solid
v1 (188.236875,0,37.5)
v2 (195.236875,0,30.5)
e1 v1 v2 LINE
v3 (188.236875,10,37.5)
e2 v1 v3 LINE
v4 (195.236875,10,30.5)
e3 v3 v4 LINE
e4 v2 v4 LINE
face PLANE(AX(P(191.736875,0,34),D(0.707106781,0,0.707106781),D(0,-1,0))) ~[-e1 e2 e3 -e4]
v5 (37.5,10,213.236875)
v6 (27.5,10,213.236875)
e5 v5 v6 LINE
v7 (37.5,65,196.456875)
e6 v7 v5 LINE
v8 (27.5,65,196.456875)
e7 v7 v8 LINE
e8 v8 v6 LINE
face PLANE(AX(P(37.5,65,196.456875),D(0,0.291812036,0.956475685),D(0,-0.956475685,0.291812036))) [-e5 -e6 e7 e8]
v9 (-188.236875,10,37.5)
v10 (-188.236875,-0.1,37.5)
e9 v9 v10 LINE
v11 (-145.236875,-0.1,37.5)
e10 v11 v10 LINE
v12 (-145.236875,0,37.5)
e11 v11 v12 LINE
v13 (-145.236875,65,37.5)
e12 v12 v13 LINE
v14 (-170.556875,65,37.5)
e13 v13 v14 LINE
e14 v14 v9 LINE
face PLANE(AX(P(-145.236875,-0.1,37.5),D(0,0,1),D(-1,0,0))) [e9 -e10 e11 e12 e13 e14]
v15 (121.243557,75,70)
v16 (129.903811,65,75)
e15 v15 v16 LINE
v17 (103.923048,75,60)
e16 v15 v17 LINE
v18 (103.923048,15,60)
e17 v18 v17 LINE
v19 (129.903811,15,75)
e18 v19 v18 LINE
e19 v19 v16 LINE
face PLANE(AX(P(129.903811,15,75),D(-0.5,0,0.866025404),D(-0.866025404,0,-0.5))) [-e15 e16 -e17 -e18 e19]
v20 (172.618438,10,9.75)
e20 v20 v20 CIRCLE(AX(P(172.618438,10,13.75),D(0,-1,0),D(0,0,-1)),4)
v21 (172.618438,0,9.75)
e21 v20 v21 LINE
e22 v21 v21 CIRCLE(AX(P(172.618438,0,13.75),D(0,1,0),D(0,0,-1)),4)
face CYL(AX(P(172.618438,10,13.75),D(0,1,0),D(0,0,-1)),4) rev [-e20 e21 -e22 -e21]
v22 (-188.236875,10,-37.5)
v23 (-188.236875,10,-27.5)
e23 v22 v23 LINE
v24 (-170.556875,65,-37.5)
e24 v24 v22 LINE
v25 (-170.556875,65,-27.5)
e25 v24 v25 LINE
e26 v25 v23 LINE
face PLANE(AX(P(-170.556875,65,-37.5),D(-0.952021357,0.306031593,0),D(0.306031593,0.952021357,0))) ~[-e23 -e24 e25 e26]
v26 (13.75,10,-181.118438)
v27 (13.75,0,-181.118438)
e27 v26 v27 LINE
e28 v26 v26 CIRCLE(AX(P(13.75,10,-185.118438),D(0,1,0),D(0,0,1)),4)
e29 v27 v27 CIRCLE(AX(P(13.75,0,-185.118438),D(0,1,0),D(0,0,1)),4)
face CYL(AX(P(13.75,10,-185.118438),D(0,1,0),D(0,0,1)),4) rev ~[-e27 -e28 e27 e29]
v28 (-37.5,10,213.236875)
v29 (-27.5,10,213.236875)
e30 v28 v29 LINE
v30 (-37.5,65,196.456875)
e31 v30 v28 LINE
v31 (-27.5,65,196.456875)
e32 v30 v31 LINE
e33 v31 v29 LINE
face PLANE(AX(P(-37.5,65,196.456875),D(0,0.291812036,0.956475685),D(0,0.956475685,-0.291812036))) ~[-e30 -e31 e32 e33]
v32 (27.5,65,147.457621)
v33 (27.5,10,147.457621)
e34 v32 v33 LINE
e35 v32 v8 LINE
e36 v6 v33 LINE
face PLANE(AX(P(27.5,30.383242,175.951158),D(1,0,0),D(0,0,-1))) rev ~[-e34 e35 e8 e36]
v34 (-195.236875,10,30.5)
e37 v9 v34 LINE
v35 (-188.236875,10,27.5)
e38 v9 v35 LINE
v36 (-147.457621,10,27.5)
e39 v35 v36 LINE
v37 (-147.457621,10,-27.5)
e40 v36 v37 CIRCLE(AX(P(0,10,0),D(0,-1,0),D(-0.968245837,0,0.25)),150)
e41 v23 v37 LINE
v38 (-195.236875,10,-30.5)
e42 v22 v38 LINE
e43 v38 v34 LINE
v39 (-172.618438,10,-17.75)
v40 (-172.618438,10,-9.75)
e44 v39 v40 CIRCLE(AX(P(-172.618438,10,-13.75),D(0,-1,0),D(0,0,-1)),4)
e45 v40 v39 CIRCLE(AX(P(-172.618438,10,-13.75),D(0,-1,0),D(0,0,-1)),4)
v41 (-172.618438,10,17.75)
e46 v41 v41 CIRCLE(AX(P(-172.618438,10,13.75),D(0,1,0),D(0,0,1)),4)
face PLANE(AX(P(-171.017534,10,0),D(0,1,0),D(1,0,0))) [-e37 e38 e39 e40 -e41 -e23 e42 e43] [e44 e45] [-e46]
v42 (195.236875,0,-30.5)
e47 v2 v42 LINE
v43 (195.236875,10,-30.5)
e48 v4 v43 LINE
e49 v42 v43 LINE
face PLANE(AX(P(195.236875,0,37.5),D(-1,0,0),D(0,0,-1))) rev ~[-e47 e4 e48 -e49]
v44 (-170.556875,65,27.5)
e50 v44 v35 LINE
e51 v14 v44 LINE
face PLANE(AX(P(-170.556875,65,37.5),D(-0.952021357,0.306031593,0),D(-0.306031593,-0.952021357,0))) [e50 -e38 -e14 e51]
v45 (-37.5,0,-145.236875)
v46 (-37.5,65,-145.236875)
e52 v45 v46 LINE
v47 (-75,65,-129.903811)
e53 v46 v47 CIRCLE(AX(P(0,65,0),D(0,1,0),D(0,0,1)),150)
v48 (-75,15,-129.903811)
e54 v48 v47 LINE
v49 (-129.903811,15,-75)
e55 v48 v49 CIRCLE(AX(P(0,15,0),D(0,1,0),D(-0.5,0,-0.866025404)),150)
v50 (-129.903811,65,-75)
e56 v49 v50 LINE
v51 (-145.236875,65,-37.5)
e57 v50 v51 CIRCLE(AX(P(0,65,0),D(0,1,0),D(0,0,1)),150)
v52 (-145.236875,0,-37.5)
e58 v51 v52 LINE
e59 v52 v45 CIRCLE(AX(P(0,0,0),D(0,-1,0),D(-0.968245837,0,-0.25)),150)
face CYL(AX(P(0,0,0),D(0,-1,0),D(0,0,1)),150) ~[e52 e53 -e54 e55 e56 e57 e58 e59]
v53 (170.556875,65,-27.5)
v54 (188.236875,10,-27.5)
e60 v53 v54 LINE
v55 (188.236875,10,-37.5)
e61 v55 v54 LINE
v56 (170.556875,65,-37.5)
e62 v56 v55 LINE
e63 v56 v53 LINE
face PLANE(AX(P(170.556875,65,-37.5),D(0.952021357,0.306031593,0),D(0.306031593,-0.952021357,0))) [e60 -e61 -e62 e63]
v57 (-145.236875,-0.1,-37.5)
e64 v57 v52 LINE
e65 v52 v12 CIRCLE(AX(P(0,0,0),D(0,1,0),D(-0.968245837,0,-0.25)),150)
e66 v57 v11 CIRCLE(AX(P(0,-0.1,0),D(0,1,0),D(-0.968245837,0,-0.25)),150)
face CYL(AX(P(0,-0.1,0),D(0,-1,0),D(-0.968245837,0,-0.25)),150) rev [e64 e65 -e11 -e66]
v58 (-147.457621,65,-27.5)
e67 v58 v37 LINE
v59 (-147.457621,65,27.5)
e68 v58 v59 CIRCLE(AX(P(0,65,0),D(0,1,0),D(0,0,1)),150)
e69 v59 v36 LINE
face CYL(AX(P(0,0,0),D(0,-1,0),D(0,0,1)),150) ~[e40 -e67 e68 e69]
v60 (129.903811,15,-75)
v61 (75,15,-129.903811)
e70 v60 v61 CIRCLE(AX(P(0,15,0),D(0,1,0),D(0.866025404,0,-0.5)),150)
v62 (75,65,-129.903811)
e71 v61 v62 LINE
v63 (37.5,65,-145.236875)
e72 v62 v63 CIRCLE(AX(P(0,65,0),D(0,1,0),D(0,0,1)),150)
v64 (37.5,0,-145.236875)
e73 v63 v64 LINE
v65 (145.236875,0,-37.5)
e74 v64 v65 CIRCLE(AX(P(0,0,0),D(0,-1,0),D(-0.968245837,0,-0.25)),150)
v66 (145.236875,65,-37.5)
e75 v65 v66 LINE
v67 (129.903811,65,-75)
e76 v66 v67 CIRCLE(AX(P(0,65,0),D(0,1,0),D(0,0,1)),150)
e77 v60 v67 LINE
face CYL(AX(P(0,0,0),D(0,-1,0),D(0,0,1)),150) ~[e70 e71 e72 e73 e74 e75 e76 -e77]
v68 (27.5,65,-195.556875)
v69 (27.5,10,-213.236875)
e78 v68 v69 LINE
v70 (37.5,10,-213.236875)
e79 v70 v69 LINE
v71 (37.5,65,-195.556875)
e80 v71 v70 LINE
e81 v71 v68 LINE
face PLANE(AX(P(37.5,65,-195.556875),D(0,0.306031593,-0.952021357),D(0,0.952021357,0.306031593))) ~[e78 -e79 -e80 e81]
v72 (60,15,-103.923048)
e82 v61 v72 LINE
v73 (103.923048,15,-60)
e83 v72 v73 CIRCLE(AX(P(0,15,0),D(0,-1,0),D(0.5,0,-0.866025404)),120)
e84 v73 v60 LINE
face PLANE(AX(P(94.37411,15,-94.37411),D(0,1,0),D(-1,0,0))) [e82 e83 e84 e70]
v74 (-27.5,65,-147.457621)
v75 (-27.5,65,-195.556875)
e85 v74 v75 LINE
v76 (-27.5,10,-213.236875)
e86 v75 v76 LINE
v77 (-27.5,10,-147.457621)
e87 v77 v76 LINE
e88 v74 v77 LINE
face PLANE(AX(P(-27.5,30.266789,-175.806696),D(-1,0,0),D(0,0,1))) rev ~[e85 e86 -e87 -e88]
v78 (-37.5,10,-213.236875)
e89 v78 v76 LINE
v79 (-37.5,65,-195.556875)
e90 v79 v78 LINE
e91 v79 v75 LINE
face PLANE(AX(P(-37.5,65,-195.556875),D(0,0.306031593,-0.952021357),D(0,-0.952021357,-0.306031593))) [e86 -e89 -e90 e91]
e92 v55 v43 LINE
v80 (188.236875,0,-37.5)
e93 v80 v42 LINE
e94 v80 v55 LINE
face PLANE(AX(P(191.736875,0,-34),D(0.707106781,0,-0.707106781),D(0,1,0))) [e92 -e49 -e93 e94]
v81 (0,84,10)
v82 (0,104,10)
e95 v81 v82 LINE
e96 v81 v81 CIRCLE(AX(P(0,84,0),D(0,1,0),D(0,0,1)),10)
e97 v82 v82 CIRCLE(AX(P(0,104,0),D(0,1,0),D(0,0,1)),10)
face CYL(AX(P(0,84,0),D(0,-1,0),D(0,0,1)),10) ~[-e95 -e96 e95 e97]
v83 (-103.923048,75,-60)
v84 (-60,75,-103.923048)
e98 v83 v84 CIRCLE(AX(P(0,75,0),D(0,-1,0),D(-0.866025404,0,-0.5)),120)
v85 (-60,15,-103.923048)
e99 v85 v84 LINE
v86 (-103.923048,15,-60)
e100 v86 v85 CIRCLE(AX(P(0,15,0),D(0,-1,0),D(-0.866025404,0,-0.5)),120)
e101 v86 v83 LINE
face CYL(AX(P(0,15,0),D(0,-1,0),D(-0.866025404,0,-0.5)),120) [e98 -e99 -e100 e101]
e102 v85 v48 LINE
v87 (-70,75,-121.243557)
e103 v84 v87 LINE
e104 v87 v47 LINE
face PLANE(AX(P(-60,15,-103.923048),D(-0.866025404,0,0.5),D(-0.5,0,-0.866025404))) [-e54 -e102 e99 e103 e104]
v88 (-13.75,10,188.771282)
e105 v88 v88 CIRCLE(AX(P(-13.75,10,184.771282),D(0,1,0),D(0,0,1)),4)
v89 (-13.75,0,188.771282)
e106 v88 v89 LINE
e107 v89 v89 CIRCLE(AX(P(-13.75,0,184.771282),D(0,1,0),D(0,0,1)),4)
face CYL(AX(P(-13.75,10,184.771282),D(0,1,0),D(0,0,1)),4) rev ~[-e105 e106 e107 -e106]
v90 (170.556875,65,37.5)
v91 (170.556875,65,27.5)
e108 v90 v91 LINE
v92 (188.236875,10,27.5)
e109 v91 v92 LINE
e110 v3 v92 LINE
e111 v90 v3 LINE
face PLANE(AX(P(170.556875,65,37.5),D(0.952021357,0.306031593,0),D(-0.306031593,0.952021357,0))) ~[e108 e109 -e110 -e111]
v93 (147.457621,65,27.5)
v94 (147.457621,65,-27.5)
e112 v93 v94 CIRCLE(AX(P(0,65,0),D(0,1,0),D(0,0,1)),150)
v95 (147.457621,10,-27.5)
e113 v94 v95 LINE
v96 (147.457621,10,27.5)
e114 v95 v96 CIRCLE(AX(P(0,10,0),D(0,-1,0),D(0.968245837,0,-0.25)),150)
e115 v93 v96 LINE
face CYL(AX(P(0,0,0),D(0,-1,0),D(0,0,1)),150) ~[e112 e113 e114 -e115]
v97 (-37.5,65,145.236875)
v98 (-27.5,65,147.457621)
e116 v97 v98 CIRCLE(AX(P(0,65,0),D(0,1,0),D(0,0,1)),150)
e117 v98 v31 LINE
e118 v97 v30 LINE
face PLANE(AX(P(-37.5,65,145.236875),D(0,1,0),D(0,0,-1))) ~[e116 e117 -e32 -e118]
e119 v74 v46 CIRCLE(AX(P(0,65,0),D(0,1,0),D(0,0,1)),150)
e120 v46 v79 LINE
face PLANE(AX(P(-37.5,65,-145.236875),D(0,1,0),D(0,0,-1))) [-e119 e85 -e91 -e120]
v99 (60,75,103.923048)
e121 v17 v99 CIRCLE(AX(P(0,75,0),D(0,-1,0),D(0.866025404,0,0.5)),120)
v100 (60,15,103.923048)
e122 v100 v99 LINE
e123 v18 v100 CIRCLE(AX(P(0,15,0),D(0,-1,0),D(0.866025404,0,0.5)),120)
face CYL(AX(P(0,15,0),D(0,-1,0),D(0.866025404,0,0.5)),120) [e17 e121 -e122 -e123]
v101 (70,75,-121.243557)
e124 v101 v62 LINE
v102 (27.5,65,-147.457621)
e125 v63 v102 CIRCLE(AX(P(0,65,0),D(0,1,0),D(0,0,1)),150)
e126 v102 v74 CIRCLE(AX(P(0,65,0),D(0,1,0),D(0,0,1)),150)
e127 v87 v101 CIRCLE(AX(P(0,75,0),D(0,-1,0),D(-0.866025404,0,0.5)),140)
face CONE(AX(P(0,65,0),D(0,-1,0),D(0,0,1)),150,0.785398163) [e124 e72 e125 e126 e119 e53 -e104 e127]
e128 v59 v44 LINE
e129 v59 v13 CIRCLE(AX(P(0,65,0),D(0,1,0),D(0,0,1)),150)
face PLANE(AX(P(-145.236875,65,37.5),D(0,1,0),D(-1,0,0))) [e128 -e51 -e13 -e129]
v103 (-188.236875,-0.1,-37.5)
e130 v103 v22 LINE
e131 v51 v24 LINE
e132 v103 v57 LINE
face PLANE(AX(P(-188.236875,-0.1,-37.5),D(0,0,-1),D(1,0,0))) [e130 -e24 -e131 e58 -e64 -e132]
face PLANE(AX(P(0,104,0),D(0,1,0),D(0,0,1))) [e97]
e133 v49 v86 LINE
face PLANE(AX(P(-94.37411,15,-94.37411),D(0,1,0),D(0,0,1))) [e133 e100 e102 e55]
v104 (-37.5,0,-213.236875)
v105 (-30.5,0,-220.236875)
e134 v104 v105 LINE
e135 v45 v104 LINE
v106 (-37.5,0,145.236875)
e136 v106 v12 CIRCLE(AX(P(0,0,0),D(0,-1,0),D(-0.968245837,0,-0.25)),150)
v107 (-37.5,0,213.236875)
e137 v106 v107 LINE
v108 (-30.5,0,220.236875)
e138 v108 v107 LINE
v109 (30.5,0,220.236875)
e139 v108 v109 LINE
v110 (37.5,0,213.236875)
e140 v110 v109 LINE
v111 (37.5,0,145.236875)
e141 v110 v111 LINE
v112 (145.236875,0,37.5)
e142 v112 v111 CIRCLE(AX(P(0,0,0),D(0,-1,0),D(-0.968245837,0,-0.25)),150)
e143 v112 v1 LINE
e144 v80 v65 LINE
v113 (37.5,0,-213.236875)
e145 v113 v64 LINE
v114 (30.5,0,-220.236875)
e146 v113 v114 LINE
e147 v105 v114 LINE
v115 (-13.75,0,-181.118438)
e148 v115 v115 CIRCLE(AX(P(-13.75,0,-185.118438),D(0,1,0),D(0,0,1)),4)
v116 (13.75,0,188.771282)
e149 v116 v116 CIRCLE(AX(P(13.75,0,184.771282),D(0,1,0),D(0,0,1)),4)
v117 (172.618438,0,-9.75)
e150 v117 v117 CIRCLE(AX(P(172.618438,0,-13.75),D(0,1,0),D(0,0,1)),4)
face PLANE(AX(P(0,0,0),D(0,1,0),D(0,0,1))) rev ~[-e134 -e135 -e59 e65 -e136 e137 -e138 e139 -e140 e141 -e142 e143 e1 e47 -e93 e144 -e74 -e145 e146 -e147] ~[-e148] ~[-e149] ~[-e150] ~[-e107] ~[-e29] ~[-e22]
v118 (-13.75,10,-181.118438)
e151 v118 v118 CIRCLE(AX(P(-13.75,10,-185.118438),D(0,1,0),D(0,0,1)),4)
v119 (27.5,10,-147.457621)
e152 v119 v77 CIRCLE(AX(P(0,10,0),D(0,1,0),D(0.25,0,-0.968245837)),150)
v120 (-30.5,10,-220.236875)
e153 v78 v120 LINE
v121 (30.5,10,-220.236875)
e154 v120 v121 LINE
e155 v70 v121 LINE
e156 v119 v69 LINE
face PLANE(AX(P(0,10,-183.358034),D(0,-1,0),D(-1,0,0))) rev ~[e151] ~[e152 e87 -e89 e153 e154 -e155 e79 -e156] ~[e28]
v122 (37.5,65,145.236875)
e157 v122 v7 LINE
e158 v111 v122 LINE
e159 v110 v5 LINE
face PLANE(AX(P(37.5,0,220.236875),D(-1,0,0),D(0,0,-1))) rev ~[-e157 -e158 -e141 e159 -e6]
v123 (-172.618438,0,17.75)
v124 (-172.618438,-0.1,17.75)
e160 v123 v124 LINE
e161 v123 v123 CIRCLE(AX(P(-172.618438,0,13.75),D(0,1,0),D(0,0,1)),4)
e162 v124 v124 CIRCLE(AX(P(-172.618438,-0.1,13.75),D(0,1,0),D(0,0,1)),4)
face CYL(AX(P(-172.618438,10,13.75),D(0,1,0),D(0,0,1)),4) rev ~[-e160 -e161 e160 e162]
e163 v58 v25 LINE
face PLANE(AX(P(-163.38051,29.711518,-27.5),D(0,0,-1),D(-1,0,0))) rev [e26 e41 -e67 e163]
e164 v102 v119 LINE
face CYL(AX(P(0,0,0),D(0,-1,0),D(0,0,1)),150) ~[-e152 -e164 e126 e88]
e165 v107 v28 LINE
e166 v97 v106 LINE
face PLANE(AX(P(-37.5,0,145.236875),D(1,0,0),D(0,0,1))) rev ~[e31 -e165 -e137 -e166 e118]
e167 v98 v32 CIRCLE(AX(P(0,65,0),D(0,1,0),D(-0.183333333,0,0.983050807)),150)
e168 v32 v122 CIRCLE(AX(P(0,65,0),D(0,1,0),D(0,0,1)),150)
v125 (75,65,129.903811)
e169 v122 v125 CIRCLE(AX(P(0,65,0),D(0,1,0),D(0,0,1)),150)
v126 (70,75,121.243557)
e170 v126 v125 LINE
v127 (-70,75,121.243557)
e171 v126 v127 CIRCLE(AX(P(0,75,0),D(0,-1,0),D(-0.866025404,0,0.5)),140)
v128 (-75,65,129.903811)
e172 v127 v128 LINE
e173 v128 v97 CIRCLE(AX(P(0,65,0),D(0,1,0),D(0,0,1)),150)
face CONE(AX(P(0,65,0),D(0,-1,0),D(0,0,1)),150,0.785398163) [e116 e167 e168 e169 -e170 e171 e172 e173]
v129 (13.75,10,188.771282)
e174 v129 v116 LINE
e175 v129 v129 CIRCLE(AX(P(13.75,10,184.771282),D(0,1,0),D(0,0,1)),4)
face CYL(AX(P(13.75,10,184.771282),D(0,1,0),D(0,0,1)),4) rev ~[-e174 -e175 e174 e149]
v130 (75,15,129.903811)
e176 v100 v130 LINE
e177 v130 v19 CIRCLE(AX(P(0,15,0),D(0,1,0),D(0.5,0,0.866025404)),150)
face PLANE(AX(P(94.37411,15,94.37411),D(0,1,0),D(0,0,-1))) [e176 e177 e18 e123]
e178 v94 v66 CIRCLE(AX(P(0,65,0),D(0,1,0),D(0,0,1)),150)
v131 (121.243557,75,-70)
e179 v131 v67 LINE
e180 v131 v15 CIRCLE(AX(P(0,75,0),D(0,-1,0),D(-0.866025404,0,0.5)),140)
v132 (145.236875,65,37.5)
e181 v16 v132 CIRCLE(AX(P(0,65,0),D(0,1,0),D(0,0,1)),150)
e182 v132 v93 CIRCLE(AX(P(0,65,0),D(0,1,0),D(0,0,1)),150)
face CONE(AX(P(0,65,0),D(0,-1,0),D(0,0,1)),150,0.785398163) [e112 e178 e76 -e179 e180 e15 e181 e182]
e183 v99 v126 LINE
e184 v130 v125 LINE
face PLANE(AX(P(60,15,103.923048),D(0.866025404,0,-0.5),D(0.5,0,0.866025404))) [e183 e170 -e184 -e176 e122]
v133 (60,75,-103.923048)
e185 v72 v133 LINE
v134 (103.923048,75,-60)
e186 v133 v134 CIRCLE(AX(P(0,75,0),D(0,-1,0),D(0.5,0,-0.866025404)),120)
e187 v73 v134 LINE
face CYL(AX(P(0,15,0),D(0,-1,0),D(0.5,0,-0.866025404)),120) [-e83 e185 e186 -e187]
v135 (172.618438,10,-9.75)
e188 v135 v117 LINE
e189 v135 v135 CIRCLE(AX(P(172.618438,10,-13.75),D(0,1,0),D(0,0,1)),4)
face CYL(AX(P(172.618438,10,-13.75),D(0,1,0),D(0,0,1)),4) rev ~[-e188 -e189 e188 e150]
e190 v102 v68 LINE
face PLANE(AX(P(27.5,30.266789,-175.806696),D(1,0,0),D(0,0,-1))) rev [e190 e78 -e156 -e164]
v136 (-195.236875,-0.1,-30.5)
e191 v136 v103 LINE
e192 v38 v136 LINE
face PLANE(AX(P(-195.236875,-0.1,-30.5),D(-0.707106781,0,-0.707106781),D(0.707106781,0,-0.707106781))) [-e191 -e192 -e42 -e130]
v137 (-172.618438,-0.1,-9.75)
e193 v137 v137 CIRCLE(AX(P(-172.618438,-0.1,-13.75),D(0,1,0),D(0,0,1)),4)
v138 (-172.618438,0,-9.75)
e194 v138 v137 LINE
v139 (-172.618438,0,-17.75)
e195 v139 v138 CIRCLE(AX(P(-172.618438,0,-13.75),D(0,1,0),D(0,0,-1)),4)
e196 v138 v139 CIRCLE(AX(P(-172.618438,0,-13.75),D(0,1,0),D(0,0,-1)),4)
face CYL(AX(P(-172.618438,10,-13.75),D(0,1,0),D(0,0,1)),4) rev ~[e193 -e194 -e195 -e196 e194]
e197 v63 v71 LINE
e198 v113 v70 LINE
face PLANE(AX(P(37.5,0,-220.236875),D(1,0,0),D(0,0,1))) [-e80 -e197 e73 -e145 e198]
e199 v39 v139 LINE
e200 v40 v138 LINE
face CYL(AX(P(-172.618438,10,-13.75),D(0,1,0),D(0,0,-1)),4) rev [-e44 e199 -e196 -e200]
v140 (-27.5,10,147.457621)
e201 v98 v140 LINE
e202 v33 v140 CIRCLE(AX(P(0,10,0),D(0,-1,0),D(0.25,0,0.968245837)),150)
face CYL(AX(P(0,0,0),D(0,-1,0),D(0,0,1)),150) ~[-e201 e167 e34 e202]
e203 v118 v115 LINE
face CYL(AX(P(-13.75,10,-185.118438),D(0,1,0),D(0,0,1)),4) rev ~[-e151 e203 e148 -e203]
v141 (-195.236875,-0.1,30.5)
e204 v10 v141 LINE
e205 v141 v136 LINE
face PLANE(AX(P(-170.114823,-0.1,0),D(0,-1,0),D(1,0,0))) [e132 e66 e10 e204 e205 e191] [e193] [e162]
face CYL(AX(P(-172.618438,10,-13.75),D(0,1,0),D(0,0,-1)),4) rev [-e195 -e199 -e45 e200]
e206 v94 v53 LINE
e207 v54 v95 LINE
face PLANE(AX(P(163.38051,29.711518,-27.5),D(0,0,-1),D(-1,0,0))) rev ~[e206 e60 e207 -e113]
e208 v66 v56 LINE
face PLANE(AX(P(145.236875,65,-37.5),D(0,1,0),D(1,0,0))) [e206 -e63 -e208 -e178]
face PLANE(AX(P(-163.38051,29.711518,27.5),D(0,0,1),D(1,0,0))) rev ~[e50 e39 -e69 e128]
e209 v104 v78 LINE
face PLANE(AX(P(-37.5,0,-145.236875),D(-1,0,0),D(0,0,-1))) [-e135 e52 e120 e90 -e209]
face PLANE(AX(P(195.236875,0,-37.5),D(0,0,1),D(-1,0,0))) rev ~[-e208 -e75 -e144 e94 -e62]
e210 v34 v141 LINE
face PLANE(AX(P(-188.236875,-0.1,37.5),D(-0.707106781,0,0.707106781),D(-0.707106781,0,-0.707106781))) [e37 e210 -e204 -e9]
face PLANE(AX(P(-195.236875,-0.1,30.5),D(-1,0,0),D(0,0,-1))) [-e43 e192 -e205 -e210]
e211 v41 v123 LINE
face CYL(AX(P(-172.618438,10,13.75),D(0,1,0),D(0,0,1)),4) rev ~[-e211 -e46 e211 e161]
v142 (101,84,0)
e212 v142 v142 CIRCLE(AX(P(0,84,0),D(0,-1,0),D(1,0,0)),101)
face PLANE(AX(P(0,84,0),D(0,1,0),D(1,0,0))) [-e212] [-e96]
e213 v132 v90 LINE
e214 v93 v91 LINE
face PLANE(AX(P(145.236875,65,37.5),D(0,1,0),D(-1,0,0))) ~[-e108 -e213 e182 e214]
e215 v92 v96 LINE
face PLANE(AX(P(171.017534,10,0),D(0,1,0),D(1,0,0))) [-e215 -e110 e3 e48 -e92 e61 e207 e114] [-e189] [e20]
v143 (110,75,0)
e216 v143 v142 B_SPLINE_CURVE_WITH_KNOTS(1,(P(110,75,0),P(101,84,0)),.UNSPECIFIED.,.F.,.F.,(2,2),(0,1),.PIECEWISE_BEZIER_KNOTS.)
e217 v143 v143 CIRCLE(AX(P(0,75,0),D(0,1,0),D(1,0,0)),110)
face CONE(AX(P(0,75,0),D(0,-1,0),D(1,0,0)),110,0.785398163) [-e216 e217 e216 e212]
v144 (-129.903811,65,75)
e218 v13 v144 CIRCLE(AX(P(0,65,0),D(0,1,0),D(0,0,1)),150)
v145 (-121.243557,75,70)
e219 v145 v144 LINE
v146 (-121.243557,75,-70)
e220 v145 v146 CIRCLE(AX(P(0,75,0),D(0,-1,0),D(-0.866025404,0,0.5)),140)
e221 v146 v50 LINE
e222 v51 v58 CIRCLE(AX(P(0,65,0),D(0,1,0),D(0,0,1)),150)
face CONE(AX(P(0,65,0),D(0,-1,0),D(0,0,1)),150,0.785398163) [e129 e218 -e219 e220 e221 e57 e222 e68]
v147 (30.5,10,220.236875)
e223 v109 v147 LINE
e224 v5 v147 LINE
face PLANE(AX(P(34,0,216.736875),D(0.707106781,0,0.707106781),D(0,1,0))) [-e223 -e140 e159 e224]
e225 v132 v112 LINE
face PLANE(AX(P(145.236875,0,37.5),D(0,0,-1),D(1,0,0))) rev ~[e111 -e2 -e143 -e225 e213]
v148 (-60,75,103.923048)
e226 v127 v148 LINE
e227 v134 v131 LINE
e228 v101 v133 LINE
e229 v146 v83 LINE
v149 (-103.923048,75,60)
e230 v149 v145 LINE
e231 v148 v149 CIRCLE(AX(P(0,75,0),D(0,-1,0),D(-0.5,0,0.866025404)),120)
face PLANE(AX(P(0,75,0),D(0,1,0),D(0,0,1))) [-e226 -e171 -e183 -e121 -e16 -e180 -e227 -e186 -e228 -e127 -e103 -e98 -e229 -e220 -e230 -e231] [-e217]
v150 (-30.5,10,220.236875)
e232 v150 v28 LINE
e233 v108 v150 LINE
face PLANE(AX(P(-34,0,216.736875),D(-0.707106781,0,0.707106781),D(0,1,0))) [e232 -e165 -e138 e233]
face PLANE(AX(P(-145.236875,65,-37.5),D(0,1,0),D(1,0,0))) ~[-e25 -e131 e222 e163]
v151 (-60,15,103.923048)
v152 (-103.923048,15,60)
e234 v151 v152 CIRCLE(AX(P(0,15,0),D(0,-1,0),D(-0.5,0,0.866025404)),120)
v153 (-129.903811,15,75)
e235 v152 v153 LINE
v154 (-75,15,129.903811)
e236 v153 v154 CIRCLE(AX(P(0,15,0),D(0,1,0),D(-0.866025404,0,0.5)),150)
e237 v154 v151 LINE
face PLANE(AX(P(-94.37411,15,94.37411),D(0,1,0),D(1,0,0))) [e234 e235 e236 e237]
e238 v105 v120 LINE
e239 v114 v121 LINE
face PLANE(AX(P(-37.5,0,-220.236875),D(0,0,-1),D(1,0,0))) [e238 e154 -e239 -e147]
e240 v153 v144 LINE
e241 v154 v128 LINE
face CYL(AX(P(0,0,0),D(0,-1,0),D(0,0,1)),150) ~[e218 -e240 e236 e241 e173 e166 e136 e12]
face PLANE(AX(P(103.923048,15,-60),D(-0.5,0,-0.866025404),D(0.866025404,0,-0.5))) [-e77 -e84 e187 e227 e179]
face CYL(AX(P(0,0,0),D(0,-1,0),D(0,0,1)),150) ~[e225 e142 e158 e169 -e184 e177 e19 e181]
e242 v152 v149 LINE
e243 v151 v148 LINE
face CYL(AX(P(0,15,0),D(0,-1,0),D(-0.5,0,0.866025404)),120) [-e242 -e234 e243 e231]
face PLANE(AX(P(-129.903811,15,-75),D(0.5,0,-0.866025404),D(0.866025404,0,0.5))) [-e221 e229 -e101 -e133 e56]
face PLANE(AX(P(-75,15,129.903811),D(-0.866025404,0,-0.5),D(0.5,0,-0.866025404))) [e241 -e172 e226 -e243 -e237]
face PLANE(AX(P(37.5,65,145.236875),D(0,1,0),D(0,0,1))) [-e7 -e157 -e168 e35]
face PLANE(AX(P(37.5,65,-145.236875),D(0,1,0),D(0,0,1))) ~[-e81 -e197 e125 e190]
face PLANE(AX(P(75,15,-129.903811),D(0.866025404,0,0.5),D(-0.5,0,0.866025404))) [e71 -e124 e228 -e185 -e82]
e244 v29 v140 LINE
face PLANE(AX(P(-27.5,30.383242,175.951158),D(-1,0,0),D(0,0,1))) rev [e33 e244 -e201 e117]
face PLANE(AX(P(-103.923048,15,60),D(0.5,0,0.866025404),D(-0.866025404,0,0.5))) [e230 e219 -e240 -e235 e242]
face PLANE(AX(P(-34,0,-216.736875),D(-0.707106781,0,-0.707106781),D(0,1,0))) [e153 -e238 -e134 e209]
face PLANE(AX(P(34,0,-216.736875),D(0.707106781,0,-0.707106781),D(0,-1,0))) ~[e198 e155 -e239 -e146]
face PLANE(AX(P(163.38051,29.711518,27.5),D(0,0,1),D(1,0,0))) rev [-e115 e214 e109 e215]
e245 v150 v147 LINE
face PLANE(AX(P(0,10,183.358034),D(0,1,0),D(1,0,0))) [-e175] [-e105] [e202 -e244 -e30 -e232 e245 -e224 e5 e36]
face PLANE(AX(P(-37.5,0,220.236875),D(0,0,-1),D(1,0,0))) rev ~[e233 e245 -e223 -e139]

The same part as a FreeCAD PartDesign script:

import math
import FreeCAD as App
import Part
import Sketcher

V = App.Vector
Q = App.Units.Quantity


def edges_at(feature, points):
    """Names of the edges that pass closest to the given points."""
    edges = feature.Shape.Edges
    near = lambda p: min(range(len(edges)), key=lambda i: edges[i].distToShape(Part.Vertex(*p))[0])
    return sorted({f"Edge{near(p) + 1}" for p in points})


def add_polygon(sketch, points):
    """Adds a closed chain of lines whose ends are joined by coincident constraints."""
    first, n = sketch.GeometryCount, len(points)
    for a, b in zip(points, points[1:] + points[:1]):
        sketch.addGeometry(Part.LineSegment(App.Vector(*a, 0), App.Vector(*b, 0)), False)
    for i in range(n):
        sketch.addConstraint(Sketcher.Constraint("Coincident", first + i, 2, first + (i + 1) % n, 1))

doc = App.newDocument("Part")
body = doc.addObject("PartDesign::Body", "Body")

# Sketch on XZ plane
sketch1 = body.newObject("Sketcher::SketchObject", "Sketch")
sketch1.AttachmentSupport = (doc.getObject("XZ_Plane"), [""])
sketch1.MapMode = "FlatFace"
sketch1.addGeometry(Part.Circle(V(0, 0, 0), V(0, 0, 1), 150), False)
sketch1.addConstraint([
    Sketcher.Constraint("Coincident", 0, 3, -1, 1),
    Sketcher.Constraint("Diameter", 0, Q("300 mm")),
])
pad1 = body.newObject("PartDesign::Pad", "Pad")
pad1.Profile = sketch1
pad1.Length = 75
pad1.Reversed = True
doc.recompute()

chamfer = body.newObject("PartDesign::Chamfer", "Chamfer")
chamfer.Base = (pad1, edges_at(pad1, [(0, 75, -150)]))
chamfer.Size = 10

# Sketch on XZ plane
sketch2 = body.newObject("Sketcher::SketchObject", "Sketch001")
sketch2.AttachmentSupport = (doc.getObject("XZ_Plane"), [""])
sketch2.MapMode = "FlatFace"
sketch2.addGeometry([
    Part.LineSegment(V(-145, -38, 0), V(-195, -38, 0)),
    Part.LineSegment(V(-195, -38, 0), V(-195, 38, 0)),
    Part.LineSegment(V(-195, 38, 0), V(-145, 38, 0)),
    Part.ArcOfCircle(Part.Circle(V(0, 0, 0), V(0, 0, 1), 150), math.radians(166), math.radians(194)),
], False)
sketch2.addConstraint([
    Sketcher.Constraint("Coincident", 0, 2, 1, 1),
    Sketcher.Constraint("Coincident", 1, 2, 2, 1),
    Sketcher.Constraint("Coincident", 2, 2, 3, 1),
    Sketcher.Constraint("Coincident", 3, 2, 0, 1),
    Sketcher.Constraint("Horizontal", 0),
    Sketcher.Constraint("Vertical", 1),
    Sketcher.Constraint("Horizontal", 2),
    Sketcher.Constraint("Coincident", 3, 3, -1, 1),
    Sketcher.Constraint("Vertical", 2, 2, 3, 2),
    Sketcher.Constraint("Radius", 3, Q("150 mm")),
    Sketcher.Constraint("DistanceX", 0, 2, 0, 1, Q("50 mm")),
    Sketcher.Constraint("DistanceY", 1, 1, 1, 2, Q("75 mm")),
])
pad2 = body.newObject("PartDesign::Pad", "Pad001")
pad2.Profile = sketch2
pad2.Length = 10
pad2.Reversed = True
doc.recompute()

chamfer2 = body.newObject("PartDesign::Chamfer", "Chamfer001")
chamfer2.Base = (pad2, edges_at(pad2, [(-195.237, 5, 37.5), (-195.237, 5, -37.5)]))
chamfer2.Size = 7

# Sketch on XY plane
sketch3 = body.newObject("Sketcher::SketchObject", "Sketch002")
sketch3.AttachmentSupport = (doc.getObject("XY_Plane"), [""])
sketch3.MapMode = "FlatFace"
sketch3.AttachmentOffset = App.Placement(V(0, 0, 37.5), App.Rotation())
add_polygon(sketch3, [(-145, 0), (-145, 65), (-171, 65), (-188, 10), (-188, 0)])  # lines 0-4
sketch3.addConstraint([
    Sketcher.Constraint("Vertical", 0),
    Sketcher.Constraint("Horizontal", 1),
    Sketcher.Constraint("Vertical", 3),
    Sketcher.Constraint("Horizontal", 4),
    Sketcher.Constraint("PointOnObject", 3, 2, -1),
    Sketcher.Constraint("DistanceX", 4, 1, 4, 2, Q("43 mm")),
    Sketcher.Constraint("DistanceY", 0, 1, 0, 2, Q("65 mm")),
    Sketcher.Constraint("DistanceY", 3, 2, 3, 1, Q("10 mm")),
    Sketcher.Constraint("DistanceX", 1, 2, 1, 1, Q("25.32 mm")),
    Sketcher.Constraint("DistanceX", 0, 2, -1, 1, Q("145.236875 mm")),
])
pad3 = body.newObject("PartDesign::Pad", "Pad002")
pad3.Profile = sketch3
pad3.Length = 10
pad3.Reversed = True

# Sketch on XZ plane
sketch4 = body.newObject("Sketcher::SketchObject", "Sketch003")
sketch4.AttachmentSupport = (doc.getObject("XZ_Plane"), [""])
sketch4.MapMode = "FlatFace"
sketch4.AttachmentOffset = App.Placement(V(0, 0, -10), App.Rotation())
sketch4.addGeometry(Part.Circle(V(-172.6, 13.8, 0), V(0, 0, 1), 4), False)
sketch4.addConstraint([
    Sketcher.Constraint("Diameter", 0, Q("8 mm")),
    Sketcher.Constraint("DistanceY", -1, 1, 0, 3, Q("13.75 mm")),
    Sketcher.Constraint("DistanceX", 0, 3, -1, 1, Q("172.618438 mm")),
])
pocket1 = body.newObject("PartDesign::Pocket", "Pocket")
pocket1.Profile = sketch4
pocket1.Type = "ThroughAll"
pocket1.Reversed = True
doc.recompute()

mirrored = body.newObject("PartDesign::Mirrored", "Mirrored")
mirrored.Originals = [pad3, pocket1]
mirrored.MirrorPlane = (doc.getObject("XY_Plane"), [""])
body.Tip = mirrored

# Sketch on XZ plane
sketch5 = body.newObject("Sketcher::SketchObject", "Sketch004")
sketch5.AttachmentSupport = (doc.getObject("XZ_Plane"), [""])
sketch5.MapMode = "FlatFace"
sketch5.AttachmentOffset = App.Placement(V(0, 0, 0.1), App.Rotation())
sketch5.addGeometry([
    Part.LineSegment(V(-145, 38, 0), V(-188, 38, 0)),  # 0
    Part.LineSegment(V(-188, 38, 0), V(-195, 30, 0)),  # 1
    Part.LineSegment(V(-195, 30, 0), V(-195, -30, 0)),  # 2
    Part.LineSegment(V(-195, -30, 0), V(-188, -38, 0)),  # 3
    Part.LineSegment(V(-188, -38, 0), V(-145, -38, 0)),  # 4
    Part.ArcOfCircle(Part.Circle(V(0, 0, 0), V(0, 0, 1), 150), math.radians(166), math.radians(194)),  # 5
], False)
sketch5.addConstraint([
    Sketcher.Constraint("Coincident", 0, 2, 1, 1),
    Sketcher.Constraint("Coincident", 1, 2, 2, 1),
    Sketcher.Constraint("Coincident", 2, 2, 3, 1),
    Sketcher.Constraint("Coincident", 3, 2, 4, 1),
    Sketcher.Constraint("Coincident", 4, 2, 5, 2),
    Sketcher.Constraint("Coincident", 5, 1, 0, 1),
    Sketcher.Constraint("Horizontal", 0),
    Sketcher.Constraint("Vertical", 2),
    Sketcher.Constraint("Horizontal", 4),
    Sketcher.Constraint("Coincident", 5, 3, -1, 1),
    Sketcher.Constraint("Symmetric", 0, 2, 3, 2, -1),
    Sketcher.Constraint("Perpendicular", 1, 3),
    Sketcher.Constraint("Equal", 1, 3),
    Sketcher.Constraint("Radius", 5, Q("150 mm")),
    Sketcher.Constraint("DistanceX", 0, 2, 0, 1, Q("43 mm")),
    Sketcher.Constraint("DistanceY", 2, 2, 2, 1, Q("61 mm")),
    Sketcher.Constraint("DistanceX", 1, 2, 0, 2, Q("7 mm")),
])
pad4 = body.newObject("PartDesign::Pad", "Pad003")
pad4.Profile = sketch5
pad4.Length = 0.1
pad4.Reversed = True

# Sketch on XZ plane
sketch6 = body.newObject("Sketcher::SketchObject", "Sketch005")
sketch6.AttachmentSupport = (doc.getObject("XZ_Plane"), [""])
sketch6.MapMode = "FlatFace"
sketch6.addGeometry([
    Part.LineSegment(V(38, -145, 0), V(38, -220, 0)),  # 0
    Part.LineSegment(V(38, -220, 0), V(-38, -220, 0)),  # 1
    Part.LineSegment(V(-38, -220, 0), V(-38, -145, 0)),  # 2
    Part.ArcOfCircle(Part.Circle(V(0, 0, 0), V(0, 0, 1), 150), math.radians(-104), math.radians(-76)),  # 3
    Part.LineSegment(V(38, 220, 0), V(38, 145, 0)),  # 4
    Part.ArcOfCircle(Part.Circle(V(0, 0, 0), V(0, 0, 1), 150), math.radians(76), math.radians(104)),  # 5
    Part.LineSegment(V(-38, 145, 0), V(-38, 220, 0)),  # 6
    Part.LineSegment(V(-38, 220, 0), V(38, 220, 0)),  # 7
], False)
sketch6.addConstraint([
    Sketcher.Constraint("Coincident", 0, 2, 1, 1),
    Sketcher.Constraint("Coincident", 1, 2, 2, 1),
    Sketcher.Constraint("Coincident", 2, 2, 3, 1),
    Sketcher.Constraint("Coincident", 3, 2, 0, 1),
    Sketcher.Constraint("Coincident", 4, 2, 5, 1),
    Sketcher.Constraint("Coincident", 5, 2, 6, 1),
    Sketcher.Constraint("Coincident", 6, 2, 7, 1),
    Sketcher.Constraint("Coincident", 7, 2, 4, 1),
    Sketcher.Constraint("Vertical", 0),
    Sketcher.Constraint("Horizontal", 1),
    Sketcher.Constraint("Vertical", 2),
    Sketcher.Constraint("Vertical", 4),
    Sketcher.Constraint("Vertical", 6),
    Sketcher.Constraint("Horizontal", 7),
    Sketcher.Constraint("Coincident", 3, 3, -1, 1),
    Sketcher.Constraint("Coincident", 5, 3, -1, 1),
    Sketcher.Constraint("Equal", 3, 5),
    Sketcher.Constraint("Symmetric", 0, 2, 6, 2, -1, 1),
    Sketcher.Constraint("Horizontal", 2, 2, 3, 2),
    Sketcher.Constraint("Horizontal", 4, 2, 5, 2),
    Sketcher.Constraint("Equal", 7, 0),
    Sketcher.Constraint("Radius", 3, Q("150 mm")),
    Sketcher.Constraint("DistanceX", 1, 2, 1, 1, Q("75 mm")),
])
pad5 = body.newObject("PartDesign::Pad", "Pad004")
pad5.Profile = sketch6
pad5.Length = 10
pad5.Reversed = True
doc.recompute()

chamfer3 = body.newObject("PartDesign::Chamfer", "Chamfer002")
chamfer3.Base = (pad5, edges_at(pad5, [(37.5, 5, -220.237), (-37.5, 5, -220.237)]))
chamfer3.Size = 7

# Sketch on YZ plane
sketch7 = body.newObject("Sketcher::SketchObject", "Sketch006")
sketch7.AttachmentSupport = (doc.getObject("YZ_Plane"), [""])
sketch7.MapMode = "FlatFace"
sketch7.AttachmentOffset = App.Placement(V(0, 0, -37.5), App.Rotation())
add_polygon(sketch7, [(0, -145), (65, -145), (65, -196), (10, -213), (0, -213)])  # lines 0-4
sketch7.addConstraint([
    Sketcher.Constraint("Horizontal", 0),
    Sketcher.Constraint("Vertical", 1),
    Sketcher.Constraint("Horizontal", 3),
    Sketcher.Constraint("Vertical", 4),
    Sketcher.Constraint("PointOnObject", 3, 2, -2),
    Sketcher.Constraint("DistanceX", 0, 1, 0, 2, Q("65 mm")),
    Sketcher.Constraint("DistanceX", 3, 2, 3, 1, Q("10 mm")),
    Sketcher.Constraint("DistanceY", 4, 1, 4, 2, Q("68 mm")),
    Sketcher.Constraint("DistanceY", 1, 2, 1, 1, Q("50.32 mm")),
    Sketcher.Constraint("DistanceY", 0, 2, -1, 1, Q("145.236875 mm")),
])
pad6 = body.newObject("PartDesign::Pad", "Pad005")
pad6.Profile = sketch7
pad6.Length = 10
doc.recompute()

mirrored2 = body.newObject("PartDesign::Mirrored", "Mirrored001")
mirrored2.Originals = [pad6]
mirrored2.MirrorPlane = (doc.getObject("YZ_Plane"), [""])
body.Tip = mirrored2

# Sketch on XZ plane
sketch8 = body.newObject("Sketcher::SketchObject", "Sketch007")
sketch8.AttachmentSupport = (doc.getObject("XZ_Plane"), [""])
sketch8.MapMode = "FlatFace"
sketch8.AttachmentOffset = App.Placement(V(0, 0, -10), App.Rotation())
sketch8.addGeometry([
    Part.Circle(V(-13.8, -185.1, 0), V(0, 0, 1), 4),
    Part.Circle(V(13.8, -185.1, 0), V(0, 0, 1), 4),
], False)
sketch8.addConstraint([
    Sketcher.Constraint("Equal", 0, 1),
    Sketcher.Constraint("Symmetric", 0, 3, 1, 3, -2),
    Sketcher.Constraint("Diameter", 0, Q("8 mm")),
    Sketcher.Constraint("DistanceX", 0, 3, 1, 3, Q("27.5 mm")),
    Sketcher.Constraint("DistanceY", 0, 3, -1, 1, Q("185.118438 mm")),
])
pocket2 = body.newObject("PartDesign::Pocket", "Pocket001")
pocket2.Profile = sketch8
pocket2.Type = "ThroughAll"
pocket2.Reversed = True
doc.recompute()

chamfer4 = body.newObject("PartDesign::Chamfer", "Chamfer003")
chamfer4.Base = (pocket2, edges_at(pocket2, [(-37.5, 5, 220.237), (37.5, 5, 220.237)]))
chamfer4.Size = 7

# Sketch on YZ plane
sketch9 = body.newObject("Sketcher::SketchObject", "Sketch008")
sketch9.AttachmentSupport = (doc.getObject("YZ_Plane"), [""])
sketch9.MapMode = "FlatFace"
sketch9.AttachmentOffset = App.Placement(V(0, 0, 37.5), App.Rotation())
add_polygon(sketch9, [(0, 145), (65, 145), (65, 196), (10, 213), (0, 213)])  # lines 0-4
sketch9.addConstraint([
    Sketcher.Constraint("Horizontal", 0),
    Sketcher.Constraint("Vertical", 1),
    Sketcher.Constraint("Horizontal", 3),
    Sketcher.Constraint("Vertical", 4),
    Sketcher.Constraint("PointOnObject", 3, 2, -2),
    Sketcher.Constraint("DistanceX", 0, 1, 0, 2, Q("65 mm")),
    Sketcher.Constraint("DistanceX", 3, 2, 3, 1, Q("10 mm")),
    Sketcher.Constraint("DistanceY", 4, 2, 4, 1, Q("68 mm")),
    Sketcher.Constraint("DistanceY", 1, 1, 1, 2, Q("51.22 mm")),
    Sketcher.Constraint("DistanceY", -1, 1, 0, 2, Q("145.236875 mm")),
])
pad7 = body.newObject("PartDesign::Pad", "Pad006")
pad7.Profile = sketch9
pad7.Length = 10
pad7.Reversed = True

# Sketch on XZ plane
sketch10 = body.newObject("Sketcher::SketchObject", "Sketch009")
sketch10.AttachmentSupport = (doc.getObject("XZ_Plane"), [""])
sketch10.MapMode = "FlatFace"
sketch10.AttachmentOffset = App.Placement(V(0, 0, -10), App.Rotation())
sketch10.addGeometry([
    Part.Circle(V(13.8, 184.8, 0), V(0, 0, 1), 4),
    Part.Circle(V(-13.8, 184.8, 0), V(0, 0, 1), 4),
], False)
sketch10.addConstraint([
    Sketcher.Constraint("Equal", 0, 1),
    Sketcher.Constraint("Symmetric", 0, 3, 1, 3, -2),
    Sketcher.Constraint("Diameter", 0, Q("8 mm")),
    Sketcher.Constraint("DistanceX", 1, 3, 0, 3, Q("27.5 mm")),
    Sketcher.Constraint("DistanceY", -1, 1, 0, 3, Q("184.771282 mm")),
])
pocket3 = body.newObject("PartDesign::Pocket", "Pocket002")
pocket3.Profile = sketch10
pocket3.Type = "ThroughAll"
pocket3.Reversed = True
doc.recompute()

mirrored3 = body.newObject("PartDesign::Mirrored", "Mirrored002")
mirrored3.Originals = [pad7]
mirrored3.MirrorPlane = (doc.getObject("YZ_Plane"), [""])
body.Tip = mirrored3

# Sketch on XZ plane
sketch11 = body.newObject("Sketcher::SketchObject", "Sketch010")
sketch11.AttachmentSupport = (doc.getObject("XZ_Plane"), [""])
sketch11.MapMode = "FlatFace"
sketch11.addGeometry([
    Part.LineSegment(V(195, -38, 0), V(145, -38, 0)),
    Part.ArcOfCircle(Part.Circle(V(0, 0, 0), V(0, 0, 1), 150), math.radians(-14), math.radians(14)),
    Part.LineSegment(V(145, 38, 0), V(195, 38, 0)),
    Part.LineSegment(V(195, 38, 0), V(195, -38, 0)),
], False)
sketch11.addConstraint([
    Sketcher.Constraint("Coincident", 0, 2, 1, 1),
    Sketcher.Constraint("Coincident", 1, 2, 2, 1),
    Sketcher.Constraint("Coincident", 2, 2, 3, 1),
    Sketcher.Constraint("Coincident", 3, 2, 0, 1),
    Sketcher.Constraint("Horizontal", 0),
    Sketcher.Constraint("Horizontal", 2),
    Sketcher.Constraint("Vertical", 3),
    Sketcher.Constraint("Coincident", 1, 3, -1, 1),
    Sketcher.Constraint("Vertical", 0, 2, 1, 2),
    Sketcher.Constraint("Radius", 1, Q("150 mm")),
    Sketcher.Constraint("DistanceX", 0, 2, 0, 1, Q("50 mm")),
    Sketcher.Constraint("DistanceY", 3, 2, 3, 1, Q("75 mm")),
])
pad8 = body.newObject("PartDesign::Pad", "Pad007")
pad8.Profile = sketch11
pad8.Length = 10
pad8.Reversed = True
doc.recompute()

chamfer5 = body.newObject("PartDesign::Chamfer", "Chamfer004")
chamfer5.Base = (pad8, edges_at(pad8, [(195.237, 5, 37.5), (195.237, 5, -37.5)]))
chamfer5.Size = 7

# Sketch on XY plane
sketch12 = body.newObject("Sketcher::SketchObject", "Sketch011")
sketch12.AttachmentSupport = (doc.getObject("XY_Plane"), [""])
sketch12.MapMode = "FlatFace"
sketch12.AttachmentOffset = App.Placement(V(0, 0, -37.5), App.Rotation())
add_polygon(sketch12, [(145, 0), (145, 65), (171, 65), (188, 10), (188, 0)])  # lines 0-4
sketch12.addConstraint([
    Sketcher.Constraint("Vertical", 0),
    Sketcher.Constraint("Horizontal", 1),
    Sketcher.Constraint("Vertical", 3),
    Sketcher.Constraint("Horizontal", 4),
    Sketcher.Constraint("PointOnObject", 3, 2, -1),
    Sketcher.Constraint("DistanceX", 4, 2, 4, 1, Q("43 mm")),
    Sketcher.Constraint("DistanceY", 0, 1, 0, 2, Q("65 mm")),
    Sketcher.Constraint("DistanceY", 3, 2, 3, 1, Q("10 mm")),
    Sketcher.Constraint("DistanceX", 1, 1, 1, 2, Q("25.32 mm")),
    Sketcher.Constraint("DistanceX", -1, 1, 0, 2, Q("145.236875 mm")),
])
pad9 = body.newObject("PartDesign::Pad", "Pad008")
pad9.Profile = sketch12
pad9.Length = 10

# Sketch on XZ plane
sketch13 = body.newObject("Sketcher::SketchObject", "Sketch012")
sketch13.AttachmentSupport = (doc.getObject("XZ_Plane"), [""])
sketch13.MapMode = "FlatFace"
sketch13.AttachmentOffset = App.Placement(V(0, 0, -10), App.Rotation())
sketch13.addGeometry(Part.Circle(V(172.6, -13.8, 0), V(0, 0, 1), 4), False)
sketch13.addConstraint([
    Sketcher.Constraint("Diameter", 0, Q("8 mm")),
    Sketcher.Constraint("DistanceY", 0, 3, -1, 1, Q("13.75 mm")),
    Sketcher.Constraint("DistanceX", -1, 1, 0, 3, Q("172.618438 mm")),
])
pocket4 = body.newObject("PartDesign::Pocket", "Pocket003")
pocket4.Profile = sketch13
pocket4.Type = "ThroughAll"
pocket4.Reversed = True
doc.recompute()

mirrored4 = body.newObject("PartDesign::Mirrored", "Mirrored003")
mirrored4.Originals = [pad9, pocket4]
mirrored4.MirrorPlane = (doc.getObject("XY_Plane"), [""])
body.Tip = mirrored4

# Sketch on XZ plane
sketch14 = body.newObject("Sketcher::SketchObject", "Sketch013")
sketch14.AttachmentSupport = (doc.getObject("XZ_Plane"), [""])
sketch14.MapMode = "FlatFace"
sketch14.AttachmentOffset = App.Placement(V(0, 0, -15), App.Rotation())
sketch14.addGeometry([
    Part.LineSegment(V(-104, 60, 0), V(-130, 75, 0)),
    Part.ArcOfCircle(Part.Circle(V(0, 0, 0), V(0, 0, 1), 150), math.radians(120), math.radians(150)),
    Part.LineSegment(V(-75, 130, 0), V(-60, 104, 0)),
    Part.ArcOfCircle(Part.Circle(V(0, 0, 0), V(0, 0, 1), 120), math.radians(120), math.radians(150)),
], False)
sketch14.addConstraint([
    Sketcher.Constraint("Coincident", 0, 2, 1, 2),
    Sketcher.Constraint("Coincident", 1, 1, 2, 1),
    Sketcher.Constraint("Coincident", 2, 2, 3, 1),
    Sketcher.Constraint("Coincident", 3, 2, 0, 1),
    Sketcher.Constraint("Coincident", 1, 3, -1, 1),
    Sketcher.Constraint("Coincident", 3, 3, -1, 1),
    Sketcher.Constraint("Radius", 1, Q("150 mm")),
    Sketcher.Constraint("Radius", 3, Q("120 mm")),
    Sketcher.Constraint("Angle", 0, Q("150 deg")),
    Sketcher.Constraint("Angle", 2, Q("-60 deg")),
    Sketcher.Constraint("DistanceY", -1, 1, 0, 2, Q("75 mm")),
    Sketcher.Constraint("DistanceX", 1, 1, -1, 1, Q("75 mm")),
])
pocket5 = body.newObject("PartDesign::Pocket", "Pocket004")
pocket5.Profile = sketch14
pocket5.Length = 60
doc.recompute()

polarpattern = body.newObject("PartDesign::PolarPattern", "PolarPattern")
polarpattern.Originals = [pocket5]
polarpattern.Axis = (doc.getObject("Y_Axis"), [""])
polarpattern.Angle = 360
polarpattern.Occurrences = 4
body.Tip = polarpattern

# Sketch on XZ plane
sketch15 = body.newObject("Sketcher::SketchObject", "Sketch014")
sketch15.AttachmentSupport = (doc.getObject("XZ_Plane"), [""])
sketch15.MapMode = "FlatFace"
sketch15.AttachmentOffset = App.Placement(V(0, 0, -75), App.Rotation())
sketch15.addGeometry(Part.Circle(V(0, 0, 0), V(0, 0, 1), 110), False)
sketch15.addConstraint([
    Sketcher.Constraint("Coincident", 0, 3, -1, 1),
    Sketcher.Constraint("Diameter", 0, Q("220 mm")),
])
pad10 = body.newObject("PartDesign::Pad", "Pad009")
pad10.Profile = sketch15
pad10.Length = 9
pad10.Reversed = True
pad10.TaperAngle = -45

# Sketch on XZ plane
sketch16 = body.newObject("Sketcher::SketchObject", "Sketch015")
sketch16.AttachmentSupport = (doc.getObject("XZ_Plane"), [""])
sketch16.MapMode = "FlatFace"
sketch16.AttachmentOffset = App.Placement(V(0, 0, -84), App.Rotation())
sketch16.addGeometry(Part.Circle(V(0, 0, 0), V(0, 0, 1), 10), False)
sketch16.addConstraint([
    Sketcher.Constraint("Coincident", 0, 3, -1, 1),
    Sketcher.Constraint("Diameter", 0, Q("20 mm")),
])
pad11 = body.newObject("PartDesign::Pad", "Pad010")
pad11.Profile = sketch16
pad11.Length = 20
pad11.Reversed = True

# Sketch on XZ plane
sketch17 = body.newObject("Sketcher::SketchObject", "Sketch016")
sketch17.AttachmentSupport = (doc.getObject("XZ_Plane"), [""])
sketch17.MapMode = "FlatFace"
sketch17.AttachmentOffset = App.Placement(V(0, 0, -10), App.Rotation())
sketch17.addGeometry([
    Part.Circle(V(-172.6, -13.8, 0), V(0, 0, 1), 4),
    Part.Circle(V(-172.6, 13.8, 0), V(0, 0, 1), 4),
], False)
sketch17.addConstraint([
    Sketcher.Constraint("Equal", 0, 1),
    Sketcher.Constraint("Symmetric", 0, 3, 1, 3, -1),
    Sketcher.Constraint("Diameter", 0, Q("8 mm")),
    Sketcher.Constraint("DistanceY", 0, 3, 1, 3, Q("27.5 mm")),
    Sketcher.Constraint("DistanceX", 0, 3, -1, 1, Q("172.618438 mm")),
])
pocket6 = body.newObject("PartDesign::Pocket", "Pocket005")
pocket6.Profile = sketch17
pocket6.Type = "ThroughAll"
pocket6.Reversed = True

doc.recompute()
